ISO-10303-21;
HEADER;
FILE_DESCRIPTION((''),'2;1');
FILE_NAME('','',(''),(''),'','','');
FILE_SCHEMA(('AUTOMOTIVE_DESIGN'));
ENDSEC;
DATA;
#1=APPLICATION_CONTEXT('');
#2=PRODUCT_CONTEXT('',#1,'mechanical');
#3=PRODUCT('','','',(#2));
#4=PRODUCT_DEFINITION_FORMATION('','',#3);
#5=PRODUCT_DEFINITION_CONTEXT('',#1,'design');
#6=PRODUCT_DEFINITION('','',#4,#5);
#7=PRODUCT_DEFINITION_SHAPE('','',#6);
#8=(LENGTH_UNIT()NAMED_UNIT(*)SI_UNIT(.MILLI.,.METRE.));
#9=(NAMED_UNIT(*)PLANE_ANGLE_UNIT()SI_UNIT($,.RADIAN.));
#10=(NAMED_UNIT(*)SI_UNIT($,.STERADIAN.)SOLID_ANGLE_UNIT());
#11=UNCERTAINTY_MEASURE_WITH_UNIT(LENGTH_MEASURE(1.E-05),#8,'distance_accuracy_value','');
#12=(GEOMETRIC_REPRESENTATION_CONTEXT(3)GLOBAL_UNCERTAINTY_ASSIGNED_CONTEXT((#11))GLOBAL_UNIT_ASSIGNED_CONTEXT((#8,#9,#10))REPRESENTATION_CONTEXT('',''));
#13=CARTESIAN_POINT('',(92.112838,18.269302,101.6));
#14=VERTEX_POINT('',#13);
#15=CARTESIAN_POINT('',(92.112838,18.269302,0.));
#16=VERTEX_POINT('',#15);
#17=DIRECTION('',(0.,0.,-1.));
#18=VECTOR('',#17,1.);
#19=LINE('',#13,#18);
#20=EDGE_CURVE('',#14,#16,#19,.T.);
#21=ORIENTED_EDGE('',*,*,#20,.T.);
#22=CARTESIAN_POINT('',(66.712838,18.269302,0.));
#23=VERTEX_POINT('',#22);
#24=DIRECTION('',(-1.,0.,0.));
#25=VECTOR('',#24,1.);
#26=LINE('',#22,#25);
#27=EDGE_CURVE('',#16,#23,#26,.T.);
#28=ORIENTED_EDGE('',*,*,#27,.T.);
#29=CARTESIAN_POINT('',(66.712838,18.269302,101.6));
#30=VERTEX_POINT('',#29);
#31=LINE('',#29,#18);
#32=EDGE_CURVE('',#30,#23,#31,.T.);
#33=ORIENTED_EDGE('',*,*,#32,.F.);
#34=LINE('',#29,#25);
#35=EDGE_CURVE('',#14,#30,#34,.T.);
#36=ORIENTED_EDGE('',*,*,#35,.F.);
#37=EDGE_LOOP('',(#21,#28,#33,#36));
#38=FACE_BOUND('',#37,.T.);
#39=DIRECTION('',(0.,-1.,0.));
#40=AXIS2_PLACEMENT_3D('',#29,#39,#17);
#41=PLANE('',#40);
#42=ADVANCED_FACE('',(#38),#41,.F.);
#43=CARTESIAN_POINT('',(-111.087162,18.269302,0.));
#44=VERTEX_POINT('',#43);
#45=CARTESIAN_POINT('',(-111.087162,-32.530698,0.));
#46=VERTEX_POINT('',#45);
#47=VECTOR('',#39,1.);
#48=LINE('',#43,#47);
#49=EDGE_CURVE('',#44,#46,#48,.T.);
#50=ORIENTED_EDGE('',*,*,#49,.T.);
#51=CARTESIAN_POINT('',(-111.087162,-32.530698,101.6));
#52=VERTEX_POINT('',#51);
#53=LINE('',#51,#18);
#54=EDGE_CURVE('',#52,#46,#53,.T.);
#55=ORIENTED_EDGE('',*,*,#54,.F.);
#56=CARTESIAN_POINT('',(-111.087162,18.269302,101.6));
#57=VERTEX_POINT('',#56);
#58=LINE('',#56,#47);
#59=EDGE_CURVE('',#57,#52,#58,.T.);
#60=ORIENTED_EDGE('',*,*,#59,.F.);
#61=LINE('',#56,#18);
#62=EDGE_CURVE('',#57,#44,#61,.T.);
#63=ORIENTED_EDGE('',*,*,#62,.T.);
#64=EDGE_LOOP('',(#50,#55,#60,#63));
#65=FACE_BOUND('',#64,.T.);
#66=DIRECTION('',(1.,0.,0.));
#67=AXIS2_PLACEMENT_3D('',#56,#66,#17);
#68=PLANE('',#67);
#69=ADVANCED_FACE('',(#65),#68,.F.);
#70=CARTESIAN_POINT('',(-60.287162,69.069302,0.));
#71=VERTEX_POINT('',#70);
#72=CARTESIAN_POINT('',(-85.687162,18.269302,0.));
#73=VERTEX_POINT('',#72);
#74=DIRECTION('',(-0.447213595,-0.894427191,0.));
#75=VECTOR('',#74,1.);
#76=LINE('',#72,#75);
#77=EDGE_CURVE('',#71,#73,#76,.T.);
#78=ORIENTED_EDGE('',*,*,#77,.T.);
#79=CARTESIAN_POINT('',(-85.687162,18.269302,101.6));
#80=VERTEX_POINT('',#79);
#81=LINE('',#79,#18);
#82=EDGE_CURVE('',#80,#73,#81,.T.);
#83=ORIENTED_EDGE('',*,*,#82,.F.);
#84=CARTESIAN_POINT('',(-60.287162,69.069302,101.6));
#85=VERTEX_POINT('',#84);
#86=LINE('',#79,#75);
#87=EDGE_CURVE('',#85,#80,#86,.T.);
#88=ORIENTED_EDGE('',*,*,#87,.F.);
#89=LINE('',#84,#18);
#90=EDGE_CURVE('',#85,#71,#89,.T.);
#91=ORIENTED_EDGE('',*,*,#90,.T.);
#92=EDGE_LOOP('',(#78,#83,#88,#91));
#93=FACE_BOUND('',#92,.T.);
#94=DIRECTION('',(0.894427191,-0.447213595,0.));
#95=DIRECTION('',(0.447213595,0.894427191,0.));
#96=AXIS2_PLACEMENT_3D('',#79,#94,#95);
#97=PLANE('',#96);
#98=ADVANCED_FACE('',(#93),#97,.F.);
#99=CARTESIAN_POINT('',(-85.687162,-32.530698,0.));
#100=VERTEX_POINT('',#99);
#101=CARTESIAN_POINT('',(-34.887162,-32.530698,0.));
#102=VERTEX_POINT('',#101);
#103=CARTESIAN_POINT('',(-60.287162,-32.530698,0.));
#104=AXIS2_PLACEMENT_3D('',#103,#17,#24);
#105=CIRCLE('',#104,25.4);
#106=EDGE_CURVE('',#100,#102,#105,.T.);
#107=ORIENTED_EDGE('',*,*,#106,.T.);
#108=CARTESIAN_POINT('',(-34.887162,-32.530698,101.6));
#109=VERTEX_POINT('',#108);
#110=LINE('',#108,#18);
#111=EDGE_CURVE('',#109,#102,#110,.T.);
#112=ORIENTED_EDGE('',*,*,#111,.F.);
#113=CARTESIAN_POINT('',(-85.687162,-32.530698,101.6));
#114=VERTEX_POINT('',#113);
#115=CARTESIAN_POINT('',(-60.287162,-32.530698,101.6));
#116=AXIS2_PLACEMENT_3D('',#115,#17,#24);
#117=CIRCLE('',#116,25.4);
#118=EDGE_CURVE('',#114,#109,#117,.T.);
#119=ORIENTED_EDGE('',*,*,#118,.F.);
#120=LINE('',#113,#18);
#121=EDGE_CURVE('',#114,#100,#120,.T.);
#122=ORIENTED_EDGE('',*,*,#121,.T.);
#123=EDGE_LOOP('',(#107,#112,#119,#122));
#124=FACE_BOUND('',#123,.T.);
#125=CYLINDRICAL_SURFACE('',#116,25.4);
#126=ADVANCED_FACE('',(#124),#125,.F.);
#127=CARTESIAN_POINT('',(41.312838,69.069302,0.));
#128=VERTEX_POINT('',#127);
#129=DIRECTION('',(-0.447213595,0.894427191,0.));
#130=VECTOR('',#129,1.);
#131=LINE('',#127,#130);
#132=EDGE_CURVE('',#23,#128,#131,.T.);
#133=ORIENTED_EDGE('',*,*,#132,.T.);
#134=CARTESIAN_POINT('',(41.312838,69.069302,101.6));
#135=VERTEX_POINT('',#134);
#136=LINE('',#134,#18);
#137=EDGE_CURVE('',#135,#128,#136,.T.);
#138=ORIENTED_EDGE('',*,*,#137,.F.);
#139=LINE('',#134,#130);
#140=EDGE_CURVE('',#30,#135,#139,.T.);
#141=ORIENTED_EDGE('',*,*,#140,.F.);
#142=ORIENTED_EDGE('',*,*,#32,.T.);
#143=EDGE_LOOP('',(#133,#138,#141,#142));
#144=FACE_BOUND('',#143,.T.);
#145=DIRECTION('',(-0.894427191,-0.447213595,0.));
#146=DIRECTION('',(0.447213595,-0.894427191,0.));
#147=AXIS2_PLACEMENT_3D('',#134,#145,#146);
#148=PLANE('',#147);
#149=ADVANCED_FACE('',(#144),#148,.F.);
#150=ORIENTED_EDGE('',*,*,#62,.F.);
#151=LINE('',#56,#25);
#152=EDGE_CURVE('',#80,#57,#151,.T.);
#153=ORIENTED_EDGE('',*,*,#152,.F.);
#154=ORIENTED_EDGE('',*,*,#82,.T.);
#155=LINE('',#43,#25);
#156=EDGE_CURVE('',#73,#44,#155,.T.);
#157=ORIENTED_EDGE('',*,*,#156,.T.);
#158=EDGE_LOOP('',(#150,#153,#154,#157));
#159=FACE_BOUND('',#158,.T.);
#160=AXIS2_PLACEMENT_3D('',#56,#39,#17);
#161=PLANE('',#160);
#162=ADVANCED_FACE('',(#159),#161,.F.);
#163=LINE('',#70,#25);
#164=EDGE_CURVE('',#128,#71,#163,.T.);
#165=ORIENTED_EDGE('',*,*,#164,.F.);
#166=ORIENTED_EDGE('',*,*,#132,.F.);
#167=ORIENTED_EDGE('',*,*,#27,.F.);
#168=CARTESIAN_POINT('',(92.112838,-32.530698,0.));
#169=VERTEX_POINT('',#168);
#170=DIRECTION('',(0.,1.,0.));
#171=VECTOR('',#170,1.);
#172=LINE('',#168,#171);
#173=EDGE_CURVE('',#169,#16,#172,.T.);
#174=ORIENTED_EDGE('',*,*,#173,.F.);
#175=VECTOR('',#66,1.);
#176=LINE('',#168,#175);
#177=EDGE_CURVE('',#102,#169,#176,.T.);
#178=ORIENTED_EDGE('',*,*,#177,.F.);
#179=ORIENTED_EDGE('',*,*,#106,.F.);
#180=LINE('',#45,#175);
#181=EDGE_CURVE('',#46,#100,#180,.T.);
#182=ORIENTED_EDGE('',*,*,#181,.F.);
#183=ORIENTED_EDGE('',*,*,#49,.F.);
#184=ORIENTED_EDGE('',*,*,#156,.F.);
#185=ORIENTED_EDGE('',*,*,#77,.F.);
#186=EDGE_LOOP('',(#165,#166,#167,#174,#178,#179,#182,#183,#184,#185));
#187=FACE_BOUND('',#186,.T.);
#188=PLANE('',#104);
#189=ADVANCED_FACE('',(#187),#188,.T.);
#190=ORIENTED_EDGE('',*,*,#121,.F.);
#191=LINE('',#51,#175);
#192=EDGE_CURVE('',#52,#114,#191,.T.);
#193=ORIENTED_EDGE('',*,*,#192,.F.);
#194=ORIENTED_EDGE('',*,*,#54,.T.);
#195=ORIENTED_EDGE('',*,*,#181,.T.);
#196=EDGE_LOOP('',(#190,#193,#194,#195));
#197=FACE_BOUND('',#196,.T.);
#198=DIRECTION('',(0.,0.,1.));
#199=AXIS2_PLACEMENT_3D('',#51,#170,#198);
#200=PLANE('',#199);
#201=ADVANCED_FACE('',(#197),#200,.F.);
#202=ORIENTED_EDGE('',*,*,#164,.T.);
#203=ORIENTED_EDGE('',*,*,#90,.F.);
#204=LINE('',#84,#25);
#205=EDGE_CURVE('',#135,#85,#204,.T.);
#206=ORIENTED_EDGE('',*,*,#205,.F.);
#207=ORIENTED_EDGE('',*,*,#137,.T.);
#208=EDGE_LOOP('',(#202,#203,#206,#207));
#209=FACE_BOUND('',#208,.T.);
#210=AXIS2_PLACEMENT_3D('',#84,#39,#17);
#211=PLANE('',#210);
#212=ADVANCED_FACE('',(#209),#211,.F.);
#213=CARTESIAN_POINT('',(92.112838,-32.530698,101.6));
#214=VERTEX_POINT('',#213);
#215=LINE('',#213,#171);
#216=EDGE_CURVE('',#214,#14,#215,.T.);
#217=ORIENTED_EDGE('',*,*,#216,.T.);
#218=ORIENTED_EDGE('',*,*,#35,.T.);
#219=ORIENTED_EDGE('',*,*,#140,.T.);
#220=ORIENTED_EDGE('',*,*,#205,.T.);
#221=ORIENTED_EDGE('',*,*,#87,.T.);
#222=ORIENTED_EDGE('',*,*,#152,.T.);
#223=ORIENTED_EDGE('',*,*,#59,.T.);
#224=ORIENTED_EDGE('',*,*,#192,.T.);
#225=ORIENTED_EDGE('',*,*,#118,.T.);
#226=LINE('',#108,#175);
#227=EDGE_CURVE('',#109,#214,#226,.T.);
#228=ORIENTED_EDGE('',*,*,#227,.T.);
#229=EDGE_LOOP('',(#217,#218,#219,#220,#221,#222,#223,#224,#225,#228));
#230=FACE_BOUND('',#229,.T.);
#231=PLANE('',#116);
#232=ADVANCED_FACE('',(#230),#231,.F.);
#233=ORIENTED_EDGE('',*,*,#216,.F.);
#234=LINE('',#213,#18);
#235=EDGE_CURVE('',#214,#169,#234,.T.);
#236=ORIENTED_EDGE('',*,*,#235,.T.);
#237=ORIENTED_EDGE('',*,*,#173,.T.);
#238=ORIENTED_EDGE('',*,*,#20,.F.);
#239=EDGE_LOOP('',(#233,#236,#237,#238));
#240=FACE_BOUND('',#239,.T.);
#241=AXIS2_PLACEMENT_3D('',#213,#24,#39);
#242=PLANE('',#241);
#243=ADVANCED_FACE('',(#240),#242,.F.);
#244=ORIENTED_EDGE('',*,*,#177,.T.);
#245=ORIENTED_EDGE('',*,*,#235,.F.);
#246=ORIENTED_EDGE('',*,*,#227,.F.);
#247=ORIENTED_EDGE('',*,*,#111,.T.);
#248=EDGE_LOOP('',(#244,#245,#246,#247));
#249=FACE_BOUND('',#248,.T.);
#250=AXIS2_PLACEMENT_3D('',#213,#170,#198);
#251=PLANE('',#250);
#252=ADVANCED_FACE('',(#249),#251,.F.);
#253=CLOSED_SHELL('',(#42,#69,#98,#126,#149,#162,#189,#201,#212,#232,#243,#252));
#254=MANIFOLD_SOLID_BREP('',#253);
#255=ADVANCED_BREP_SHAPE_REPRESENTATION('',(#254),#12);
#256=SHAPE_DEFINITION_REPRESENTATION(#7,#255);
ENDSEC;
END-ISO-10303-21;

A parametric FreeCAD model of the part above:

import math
import FreeCAD as App
import Part
import Sketcher

V = App.Vector
Q = App.Units.Quantity

doc = App.newDocument("Part")
body = doc.addObject("PartDesign::Body", "Body")

# Sketch on XY plane
sketch1 = doc.addObject("Sketcher::SketchObject", "Sketch")
body.addObject(sketch1)
sketch1.AttachmentSupport = (doc.XY_Plane, [""])
sketch1.MapMode = "FlatFace"
sketch1.addGeometry([
    Part.LineSegment(V(-111.087162, 18.269302, 0), V(-111.087162, -32.530698, 0)),  # 0
    Part.LineSegment(V(-111.087162, -32.530698, 0), V(-85.687162, -32.530698, 0)),  # 1
    Part.ArcOfCircle(Part.Circle(V(-60.287162, -32.530698, 0), V(0, 0, 1), 25.4), math.radians(90), math.radians(180)),  # 2
    Part.ArcOfCircle(Part.Circle(V(-60.287162, -32.530698, 0), V(0, 0, 1), 25.4), math.radians(0), math.radians(90)),  # 3
    Part.LineSegment(V(-34.887162, -32.530698, 0), V(92.112838, -32.530698, 0)),  # 4
    Part.LineSegment(V(92.112838, -32.530698, 0), V(92.112838, 18.269302, 0)),  # 5
    Part.LineSegment(V(92.112838, 18.269302, 0), V(66.712838, 18.269302, 0)),  # 6
    Part.LineSegment(V(66.712838, 18.269302, 0), V(41.312838, 69.069302, 0)),  # 7
    Part.LineSegment(V(41.312838, 69.069302, 0), V(-60.287162, 69.069302, 0)),  # 8
    Part.LineSegment(V(-60.287162, 69.069302, 0), V(-85.687162, 18.269302, 0)),  # 9
    Part.LineSegment(V(-85.687162, 18.269302, 0), V(-111.087162, 18.269302, 0)),  # 10
], False)
sketch1.addConstraint([
    Sketcher.Constraint("Coincident", 0, 2, 1, 1),
    Sketcher.Constraint("Coincident", 1, 2, 2, 2),
    Sketcher.Constraint("Tangent", 2, 1, 3, 2),
    Sketcher.Constraint("Coincident", 3, 1, 4, 1),
    Sketcher.Constraint("Coincident", 4, 2, 5, 1),
    Sketcher.Constraint("Coincident", 5, 2, 6, 1),
    Sketcher.Constraint("Coincident", 6, 2, 7, 1),
    Sketcher.Constraint("Coincident", 7, 2, 8, 1),
    Sketcher.Constraint("Coincident", 8, 2, 9, 1),
    Sketcher.Constraint("Coincident", 9, 2, 10, 1),
    Sketcher.Constraint("Coincident", 10, 2, 0, 1),
    Sketcher.Constraint("Vertical", 0),
    Sketcher.Constraint("Horizontal", 1),
    Sketcher.Constraint("Horizontal", 4),
    Sketcher.Constraint("Vertical", 5),
    Sketcher.Constraint("Horizontal", 6),
    Sketcher.Constraint("Horizontal", 8),
    Sketcher.Constraint("Horizontal", 10),
    Sketcher.Constraint("Equal", 2, 3),
    Sketcher.Constraint("Horizontal", 3, 3, 0, 2),
    Sketcher.Constraint("Horizontal", 1, 2, 3, 1),
    Sketcher.Constraint("Horizontal", 6, 2, 9, 2),
    Sketcher.Constraint("Vertical", 3, 3, 2, 1),
    Sketcher.Constraint("Vertical", 2, 1, 8, 2),
    Sketcher.Constraint("Vertical", 1, 2, 9, 2),
    Sketcher.Constraint("Equal", 1, 6),
    Sketcher.Constraint("Equal", 7, 9),
    Sketcher.Constraint("Radius", 2, Q("1 in")),
    Sketcher.Constraint("DistanceX", 1, 1, 1, 2, Q("1 in")),
    Sketcher.Constraint("DistanceX", 4, 1, 4, 2, Q("5 in")),
    Sketcher.Constraint("DistanceY", 0, 2, 0, 1, Q("2 in")),
    Sketcher.Constraint("DistanceY", 6, 2, 7, 2, Q("2 in")),
    Sketcher.Constraint("DistanceY", 2, 3, -1, 1, 32.530698),
    Sketcher.Constraint("DistanceX", 2, 3, -1, 1, 60.287162),
])
pad1 = doc.addObject("PartDesign::Pad", "Pad")
body.addObject(pad1)
pad1.Profile = sketch1
pad1.Length = Q("4 in")

doc.recompute()
